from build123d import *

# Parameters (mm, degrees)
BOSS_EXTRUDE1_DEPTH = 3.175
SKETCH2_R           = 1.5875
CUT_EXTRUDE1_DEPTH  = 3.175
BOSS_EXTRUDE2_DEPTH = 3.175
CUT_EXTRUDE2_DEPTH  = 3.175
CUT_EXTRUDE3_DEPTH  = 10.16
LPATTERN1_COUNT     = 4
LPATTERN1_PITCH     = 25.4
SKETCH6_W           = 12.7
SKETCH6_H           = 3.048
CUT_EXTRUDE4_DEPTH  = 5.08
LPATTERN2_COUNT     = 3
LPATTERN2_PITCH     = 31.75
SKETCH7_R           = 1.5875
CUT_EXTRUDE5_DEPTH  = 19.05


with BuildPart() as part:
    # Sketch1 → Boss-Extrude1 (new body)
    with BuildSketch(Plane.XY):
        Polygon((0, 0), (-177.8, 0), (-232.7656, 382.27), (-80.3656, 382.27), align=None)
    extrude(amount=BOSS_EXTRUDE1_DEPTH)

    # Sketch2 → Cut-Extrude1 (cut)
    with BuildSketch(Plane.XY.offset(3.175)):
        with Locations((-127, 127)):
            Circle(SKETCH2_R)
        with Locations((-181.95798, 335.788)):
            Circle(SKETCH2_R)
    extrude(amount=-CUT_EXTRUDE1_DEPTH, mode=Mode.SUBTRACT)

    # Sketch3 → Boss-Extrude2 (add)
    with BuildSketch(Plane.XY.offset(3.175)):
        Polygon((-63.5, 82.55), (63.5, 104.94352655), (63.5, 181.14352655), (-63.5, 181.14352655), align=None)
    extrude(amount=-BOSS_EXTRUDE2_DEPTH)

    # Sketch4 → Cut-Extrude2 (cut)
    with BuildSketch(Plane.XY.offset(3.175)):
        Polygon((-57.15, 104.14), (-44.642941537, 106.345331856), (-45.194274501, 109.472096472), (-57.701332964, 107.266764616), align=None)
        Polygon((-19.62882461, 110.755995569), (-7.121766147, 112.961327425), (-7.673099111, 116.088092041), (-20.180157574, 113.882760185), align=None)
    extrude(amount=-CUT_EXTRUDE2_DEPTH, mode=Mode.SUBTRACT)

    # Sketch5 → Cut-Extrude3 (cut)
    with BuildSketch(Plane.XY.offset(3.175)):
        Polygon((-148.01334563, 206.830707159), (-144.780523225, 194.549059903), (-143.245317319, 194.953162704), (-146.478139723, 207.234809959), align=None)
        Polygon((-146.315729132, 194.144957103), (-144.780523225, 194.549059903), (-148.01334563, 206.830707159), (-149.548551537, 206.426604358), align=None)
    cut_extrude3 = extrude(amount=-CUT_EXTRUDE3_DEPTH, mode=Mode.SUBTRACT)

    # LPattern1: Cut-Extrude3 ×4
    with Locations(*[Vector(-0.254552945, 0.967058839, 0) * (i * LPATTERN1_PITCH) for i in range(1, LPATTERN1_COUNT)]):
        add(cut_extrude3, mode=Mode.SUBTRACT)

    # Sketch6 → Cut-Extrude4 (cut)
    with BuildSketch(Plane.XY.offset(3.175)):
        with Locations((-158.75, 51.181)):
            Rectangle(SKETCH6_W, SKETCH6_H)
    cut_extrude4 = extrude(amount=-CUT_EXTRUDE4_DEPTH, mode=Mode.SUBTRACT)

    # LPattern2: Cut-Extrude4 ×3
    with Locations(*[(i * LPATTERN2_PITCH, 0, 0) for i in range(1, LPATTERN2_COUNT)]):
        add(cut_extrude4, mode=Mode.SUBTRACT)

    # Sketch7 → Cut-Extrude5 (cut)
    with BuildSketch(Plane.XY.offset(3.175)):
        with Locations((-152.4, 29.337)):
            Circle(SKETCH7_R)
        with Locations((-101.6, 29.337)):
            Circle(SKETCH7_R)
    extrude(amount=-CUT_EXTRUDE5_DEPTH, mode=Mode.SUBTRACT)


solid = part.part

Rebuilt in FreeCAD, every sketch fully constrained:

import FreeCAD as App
import Part
import Sketcher
from FreeCAD import Vector
Q = App.Units.Quantity


def add_polygon(sketch, points):
    """Adds a closed chain of lines whose ends are joined by coincident constraints."""
    first, n = sketch.GeometryCount, len(points)
    for a, b in zip(points, points[1:] + points[:1]):
        sketch.addGeometry(Part.LineSegment(App.Vector(*a, 0), App.Vector(*b, 0)), False)
    for i in range(n):
        sketch.addConstraint(Sketcher.Constraint("Coincident", first + i, 2, first + (i + 1) % n, 1))

doc = App.newDocument("Part")
params = doc.addObject("Spreadsheet::Sheet", "Params")
for row, (alias, value) in enumerate([
    ("sketch1_width", "7 in"),
    ("sketch1_width2", "6 in"),
    ("pad1_length", "0.125 in"),
    ("sketch2_diameter", "0.125 in"),
    ("pocket1_length", "0.125 in"),
    ("sketch3_width", "5 in"),
    ("sketch3_height", "3 in"),
    ("pad2_length", "0.125 in"),
    ("sketch4_length", "0.5 in"),
    ("sketch4_length2", "0.125 in"),
    ("pocket2_length", "0.125 in"),
    ("sketch5_length", "0.5 in"),
    ("sketch5_length2", "0.0625 in"),
    ("pocket3_length", "0.4 in"),
    ("linearpattern_pitch", "1 in"),
    ("sketch6_width", "0.5 in"),
    ("sketch6_height", "0.12 in"),
    ("pocket4_length", "0.2 in"),
    ("linearpattern2_pitch", "1.25 in"),
    ("sketch7_diameter", "0.125 in"),
    ("pocket5_length", "0.75 in"),
], start=1):
    params.set(f"A{row}", alias)
    params.set(f"B{row}", "=" + value)
    params.setAlias(f"B{row}", alias)

body = doc.addObject("PartDesign::Body", "Body")

# Sketch on XY plane
sketch1 = doc.addObject("Sketcher::SketchObject", "Sketch")
body.addObject(sketch1)
sketch1.AttachmentSupport = (doc.XY_Plane, [""])
sketch1.MapMode = "FlatFace"
add_polygon(sketch1, [(-177.8, 0), (0, 0), (-80.3656, 382.27), (-232.7656, 382.27)])  # lines 0-3
sketch1.addConstraint(Sketcher.Constraint("Horizontal", 0))
sketch1.addConstraint(Sketcher.Constraint("Horizontal", 2))
sketch1.addConstraint(Sketcher.Constraint("Coincident", 0, 2, -1, 1))
sketch1.addConstraint(Sketcher.Constraint("DistanceX", 0, 1, 0, 2, Q("7 in")))
sketch1.addConstraint(Sketcher.Constraint("DistanceX", 2, 2, 2, 1, Q("6 in")))
sketch1.addConstraint(Sketcher.Constraint("DistanceY", -1, 1, 1, 2, Q("15.05 in")))
sketch1.addConstraint(Sketcher.Constraint("DistanceX", 1, 2, -1, 1, Q("3.164 in")))
sketch1.setExpression("Constraints[7]", "Params.sketch1_width")
sketch1.setExpression("Constraints[8]", "Params.sketch1_width2")
pad1 = doc.addObject("PartDesign::Pad", "Pad")
body.addObject(pad1)
pad1.Profile = sketch1
pad1.setExpression("Length", "Params.pad1_length")

# Sketch on XY plane
sketch2 = doc.addObject("Sketcher::SketchObject", "Sketch001")
body.addObject(sketch2)
sketch2.AttachmentSupport = (doc.XY_Plane, [""])
sketch2.MapMode = "FlatFace"
sketch2.AttachmentOffset = App.Placement(Vector(0, 0, 0.125 * 25.4), App.Rotation())
sketch2.addGeometry(Part.Circle(Vector(-127, 127, 0), Vector(0, 0, 1), 1.5875), False)
sketch2.addGeometry(Part.Circle(Vector(-181.95798, 335.788, 0), Vector(0, 0, 1), 1.5875), False)
sketch2.addConstraint(Sketcher.Constraint("Equal", 0, 1))
sketch2.addConstraint(Sketcher.Constraint("Diameter", 0, Q("0.125 in")))
sketch2.addConstraint(Sketcher.Constraint("DistanceX", 0, 3, -1, 1, Q("5 in")))
sketch2.addConstraint(Sketcher.Constraint("DistanceY", -1, 1, 0, 3, Q("5 in")))
sketch2.addConstraint(Sketcher.Constraint("DistanceY", -1, 1, 1, 3, Q("13.22 in")))
sketch2.addConstraint(Sketcher.Constraint("DistanceX", 1, 3, -1, 1, Q("7.1637 in")))
sketch2.setExpression("Constraints[1]", "Params.sketch2_diameter")
pocket1 = doc.addObject("PartDesign::Pocket", "Pocket")
body.addObject(pocket1)
pocket1.Profile = sketch2
pocket1.setExpression("Length", "Params.pocket1_length")

# Sketch on XY plane
sketch3 = doc.addObject("Sketcher::SketchObject", "Sketch002")
body.addObject(sketch3)
sketch3.AttachmentSupport = (doc.XY_Plane, [""])
sketch3.MapMode = "FlatFace"
sketch3.AttachmentOffset = App.Placement(Vector(0, 0, 0.125 * 25.4), App.Rotation())
add_polygon(sketch3, [(-63.5, 82.55), (63.5, 104.943527), (63.5, 181.143527), (-63.5, 181.143527)])  # lines 0-3
sketch3.addConstraint(Sketcher.Constraint("Vertical", 1))
sketch3.addConstraint(Sketcher.Constraint("Horizontal", 2))
sketch3.addConstraint(Sketcher.Constraint("Vertical", 3))
sketch3.addConstraint(Sketcher.Constraint("DistanceX", 2, 2, 2, 1, Q("5 in")))
sketch3.addConstraint(Sketcher.Constraint("DistanceY", 1, 1, 1, 2, Q("3 in")))
sketch3.addConstraint(Sketcher.Constraint("Angle", 0, Q("10 deg")))
sketch3.addConstraint(Sketcher.Constraint("DistanceX", -1, 1, 0, 2, Q("2.5 in")))
sketch3.addConstraint(Sketcher.Constraint("DistanceY", -1, 1, 3, 2, Q("3.25 in")))
sketch3.setExpression("Constraints[7]", "Params.sketch3_width")
sketch3.setExpression("Constraints[8]", "Params.sketch3_height")
pad2 = doc.addObject("PartDesign::Pad", "Pad001")
body.addObject(pad2)
pad2.Profile = sketch3
pad2.setExpression("Length", "Params.pad2_length")
pad2.Reversed = True

# Sketch on XY plane
sketch4 = doc.addObject("Sketcher::SketchObject", "Sketch003")
body.addObject(sketch4)
sketch4.AttachmentSupport = (doc.XY_Plane, [""])
sketch4.MapMode = "FlatFace"
sketch4.AttachmentOffset = App.Placement(Vector(0, 0, 0.125 * 25.4), App.Rotation())
add_polygon(sketch4, [(-57.15, 104.14), (-44.642942, 106.345332), (-45.194275, 109.472096), (-57.701333, 107.266765)])  # lines 0-3
add_polygon(sketch4, [(-19.628825, 110.755996), (-7.121766, 112.961327), (-7.673099, 116.088092), (-20.180158, 113.88276)])  # lines 4-7
sketch4.addConstraint(Sketcher.Constraint("Perpendicular", 0, 1))
sketch4.addConstraint(Sketcher.Constraint("Perpendicular", 1, 2))
sketch4.addConstraint(Sketcher.Constraint("Perpendicular", 2, 3))
sketch4.addConstraint(Sketcher.Constraint("Perpendicular", 3, 4))
sketch4.addConstraint(Sketcher.Constraint("Perpendicular", 4, 5))
sketch4.addConstraint(Sketcher.Constraint("Perpendicular", 5, 6))
sketch4.addConstraint(Sketcher.Constraint("Perpendicular", 6, 7))
sketch4.addConstraint(Sketcher.Constraint("Equal", 2, 4))
sketch4.addConstraint(Sketcher.Constraint("Equal", 3, 5))
sketch4.addConstraint(Sketcher.Constraint("Angle", 0, Q("10 deg")))
sketch4.addConstraint(Sketcher.Constraint("Distance", 0, Q("0.5 in")))
sketch4.addConstraint(Sketcher.Constraint("DistanceY", -1, 1, 3, 2, Q("4.1 in")))
sketch4.addConstraint(Sketcher.Constraint("DistanceX", 3, 2, -1, 1, Q("2.25 in")))
sketch4.addConstraint(Sketcher.Constraint("Distance", 1, Q("0.125 in")))
sketch4.addConstraint(Sketcher.Constraint("DistanceX", 5, 2, -1, 1, 7.673099))
sketch4.addConstraint(Sketcher.Constraint("DistanceY", 1, 2, 7, 2, 1.283899))
sketch4.setExpression("Constraints[18]", "Params.sketch4_length")
sketch4.setExpression("Constraints[21]", "Params.sketch4_length2")
pocket2 = doc.addObject("PartDesign::Pocket", "Pocket001")
body.addObject(pocket2)
pocket2.Profile = sketch4
pocket2.setExpression("Length", "Params.pocket2_length")

# Sketch on XY plane
sketch5 = doc.addObject("Sketcher::SketchObject", "Sketch004")
body.addObject(sketch5)
sketch5.AttachmentSupport = (doc.XY_Plane, [""])
sketch5.MapMode = "FlatFace"
sketch5.AttachmentOffset = App.Placement(Vector(0, 0, 0.125 * 25.4), App.Rotation())
add_polygon(sketch5, [(-144.780523, 194.54906), (-143.245317, 194.953163), (-146.47814, 207.23481), (-148.013346, 206.830707), (-149.548552, 206.426604), (-146.315729, 194.144957)])  # lines 0-5
sketch5.addConstraint(Sketcher.Constraint("Perpendicular", 0, 1))
sketch5.addConstraint(Sketcher.Constraint("Perpendicular", 1, 2))
sketch5.addConstraint(Sketcher.Constraint("Parallel", 2, 3))
sketch5.addConstraint(Sketcher.Constraint("Perpendicular", 3, 4))
sketch5.addConstraint(Sketcher.Constraint("Perpendicular", 4, 5))
sketch5.addConstraint(Sketcher.Constraint("Equal", 0, 2))
sketch5.addConstraint(Sketcher.Constraint("Equal", 2, 3))
sketch5.addConstraint(Sketcher.Constraint("Distance", 1, Q("0.5 in")))
sketch5.addConstraint(Sketcher.Constraint("Distance", 0, Q("0.0625 in")))
sketch5.addConstraint(Sketcher.Constraint("DistanceX", 1, 2, -1, 1, 146.47814))
sketch5.addConstraint(Sketcher.Constraint("DistanceY", -1, 1, 1, 2, 207.23481))
sketch5.addConstraint(Sketcher.Constraint("DistanceX", 3, 2, -1, 1, 149.548552))
sketch5.setExpression("Constraints[13]", "Params.sketch5_length")
sketch5.setExpression("Constraints[14]", "Params.sketch5_length2")
pocket3 = doc.addObject("PartDesign::Pocket", "Pocket002")
body.addObject(pocket3)
pocket3.Profile = sketch5
pocket3.setExpression("Length", "Params.pocket3_length")
doc.recompute()

datumline = doc.addObject("PartDesign::Line", "DatumLine")
body.addObject(datumline)
datumline.Placement = App.Placement(Vector(0, 0, 0), App.Rotation(Vector(0, 0, 1), Vector(-0.254552945, 0.967058839, 0)))
linearpattern = doc.addObject("PartDesign::LinearPattern", "LinearPattern")
body.addObject(linearpattern)
linearpattern.Originals = [pocket3]
linearpattern.Direction = (datumline, [""])
linearpattern.Mode = "offset"
linearpattern.setExpression("Offset", "Params.linearpattern_pitch")
linearpattern.Occurrences = 4
body.Tip = linearpattern

# Sketch on XY plane
sketch6 = doc.addObject("Sketcher::SketchObject", "Sketch005")
body.addObject(sketch6)
sketch6.AttachmentSupport = (doc.XY_Plane, [""])
sketch6.MapMode = "FlatFace"
sketch6.AttachmentOffset = App.Placement(Vector(0, 0, 0.125 * 25.4), App.Rotation())
add_polygon(sketch6, [(-165.1, 52.705), (-165.1, 49.657), (-152.4, 49.657), (-152.4, 52.705)])  # lines 0-3
sketch6.addConstraint(Sketcher.Constraint("Vertical", 0))
sketch6.addConstraint(Sketcher.Constraint("Horizontal", 1))
sketch6.addConstraint(Sketcher.Constraint("Vertical", 2))
sketch6.addConstraint(Sketcher.Constraint("Horizontal", 3))
sketch6.addConstraint(Sketcher.Constraint("DistanceX", 1, 1, 1, 2, Q("0.5 in")))
sketch6.addConstraint(Sketcher.Constraint("DistanceX", 1, 2, -1, 1, Q("6 in")))
sketch6.addConstraint(Sketcher.Constraint("DistanceY", 0, 2, 0, 1, Q("0.12 in")))
sketch6.addConstraint(Sketcher.Constraint("DistanceY", -1, 1, 0, 2, Q("1.955 in")))
sketch6.setExpression("Constraints[8]", "Params.sketch6_width")
sketch6.setExpression("Constraints[10]", "Params.sketch6_height")
pocket4 = doc.addObject("PartDesign::Pocket", "Pocket003")
body.addObject(pocket4)
pocket4.Profile = sketch6
pocket4.setExpression("Length", "Params.pocket4_length")
doc.recompute()

linearpattern2 = doc.addObject("PartDesign::LinearPattern", "LinearPattern001")
body.addObject(linearpattern2)
linearpattern2.Originals = [pocket4]
linearpattern2.Direction = (doc.X_Axis, [""])
linearpattern2.Mode = "offset"
linearpattern2.setExpression("Offset", "Params.linearpattern2_pitch")
linearpattern2.Occurrences = 3
body.Tip = linearpattern2

# Sketch on XY plane
sketch7 = doc.addObject("Sketcher::SketchObject", "Sketch006")
body.addObject(sketch7)
sketch7.AttachmentSupport = (doc.XY_Plane, [""])
sketch7.MapMode = "FlatFace"
sketch7.AttachmentOffset = App.Placement(Vector(0, 0, 0.125 * 25.4), App.Rotation())
sketch7.addGeometry(Part.Circle(Vector(-152.4, 29.337, 0), Vector(0, 0, 1), 1.5875), False)
sketch7.addGeometry(Part.Circle(Vector(-101.6, 29.337, 0), Vector(0, 0, 1), 1.5875), False)
sketch7.addConstraint(Sketcher.Constraint("Equal", 0, 1))
sketch7.addConstraint(Sketcher.Constraint("Horizontal", 0, 3, 1, 3))
sketch7.addConstraint(Sketcher.Constraint("Diameter", 0, Q("0.125 in")))
sketch7.addConstraint(Sketcher.Constraint("DistanceX", 0, 3, -1, 1, Q("6 in")))
sketch7.addConstraint(Sketcher.Constraint("DistanceX", 1, 3, -1, 1, Q("4 in")))
sketch7.addConstraint(Sketcher.Constraint("DistanceY", -1, 1, 0, 3, Q("1.155 in")))
sketch7.setExpression("Constraints[2]", "Params.sketch7_diameter")
pocket5 = doc.addObject("PartDesign::Pocket", "Pocket004")
body.addObject(pocket5)
pocket5.Profile = sketch7
pocket5.setExpression("Length", "Params.pocket5_length")

doc.recompute()
